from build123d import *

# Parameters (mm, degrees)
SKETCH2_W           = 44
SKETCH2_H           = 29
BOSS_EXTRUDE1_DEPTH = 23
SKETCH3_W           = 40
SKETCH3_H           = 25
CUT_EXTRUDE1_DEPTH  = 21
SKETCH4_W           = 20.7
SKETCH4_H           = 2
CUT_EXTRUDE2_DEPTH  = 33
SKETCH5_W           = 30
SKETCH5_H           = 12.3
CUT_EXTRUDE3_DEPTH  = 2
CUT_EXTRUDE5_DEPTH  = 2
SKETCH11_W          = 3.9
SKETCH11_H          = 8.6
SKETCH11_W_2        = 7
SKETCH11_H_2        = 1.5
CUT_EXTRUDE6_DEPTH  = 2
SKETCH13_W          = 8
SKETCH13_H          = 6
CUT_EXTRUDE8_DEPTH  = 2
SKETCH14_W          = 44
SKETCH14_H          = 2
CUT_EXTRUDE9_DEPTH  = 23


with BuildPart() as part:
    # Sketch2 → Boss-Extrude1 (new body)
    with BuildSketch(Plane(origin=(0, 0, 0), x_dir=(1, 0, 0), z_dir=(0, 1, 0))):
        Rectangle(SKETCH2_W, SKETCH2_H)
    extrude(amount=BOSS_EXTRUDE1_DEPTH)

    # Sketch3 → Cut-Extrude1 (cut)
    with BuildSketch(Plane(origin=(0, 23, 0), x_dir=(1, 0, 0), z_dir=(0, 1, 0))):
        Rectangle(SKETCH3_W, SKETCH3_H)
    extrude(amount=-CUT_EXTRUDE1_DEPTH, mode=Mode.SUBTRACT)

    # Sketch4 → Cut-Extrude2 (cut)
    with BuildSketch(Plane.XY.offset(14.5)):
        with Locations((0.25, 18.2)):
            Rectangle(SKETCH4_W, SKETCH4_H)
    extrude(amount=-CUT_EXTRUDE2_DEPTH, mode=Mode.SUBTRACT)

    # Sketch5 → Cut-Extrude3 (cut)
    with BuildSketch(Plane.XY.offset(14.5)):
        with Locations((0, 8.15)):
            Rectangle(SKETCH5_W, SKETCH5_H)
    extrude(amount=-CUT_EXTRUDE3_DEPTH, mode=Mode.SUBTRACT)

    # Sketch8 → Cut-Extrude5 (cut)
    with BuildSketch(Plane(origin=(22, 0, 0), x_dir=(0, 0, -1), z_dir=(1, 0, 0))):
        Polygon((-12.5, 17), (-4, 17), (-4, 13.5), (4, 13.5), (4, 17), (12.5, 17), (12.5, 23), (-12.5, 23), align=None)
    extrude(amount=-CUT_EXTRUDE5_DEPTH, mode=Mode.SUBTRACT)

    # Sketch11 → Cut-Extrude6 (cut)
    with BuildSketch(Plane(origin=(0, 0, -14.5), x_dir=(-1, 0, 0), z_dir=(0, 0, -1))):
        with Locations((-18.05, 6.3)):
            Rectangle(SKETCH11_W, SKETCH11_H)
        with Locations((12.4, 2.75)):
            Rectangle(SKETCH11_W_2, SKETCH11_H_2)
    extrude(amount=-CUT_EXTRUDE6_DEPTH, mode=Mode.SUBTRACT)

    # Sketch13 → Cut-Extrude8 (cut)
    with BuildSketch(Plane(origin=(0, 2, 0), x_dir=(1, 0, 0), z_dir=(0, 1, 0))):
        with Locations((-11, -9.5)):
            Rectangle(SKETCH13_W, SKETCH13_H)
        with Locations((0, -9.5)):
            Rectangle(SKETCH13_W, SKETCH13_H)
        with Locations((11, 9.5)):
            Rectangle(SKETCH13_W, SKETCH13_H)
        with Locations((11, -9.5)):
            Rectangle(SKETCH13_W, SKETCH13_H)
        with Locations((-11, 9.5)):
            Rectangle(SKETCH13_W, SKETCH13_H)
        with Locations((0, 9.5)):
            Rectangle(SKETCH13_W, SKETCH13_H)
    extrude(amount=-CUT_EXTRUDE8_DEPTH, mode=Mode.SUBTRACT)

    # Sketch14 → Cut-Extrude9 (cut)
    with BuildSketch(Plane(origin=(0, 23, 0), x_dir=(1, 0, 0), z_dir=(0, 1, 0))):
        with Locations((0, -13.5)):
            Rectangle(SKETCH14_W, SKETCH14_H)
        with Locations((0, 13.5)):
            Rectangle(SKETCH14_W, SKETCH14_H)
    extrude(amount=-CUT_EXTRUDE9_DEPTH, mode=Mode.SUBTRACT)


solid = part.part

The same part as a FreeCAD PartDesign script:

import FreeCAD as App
import Part
import Sketcher

V = App.Vector

doc = App.newDocument("Part")
body = doc.addObject("PartDesign::Body", "Body")

# Sketch on XZ plane
sketch1 = body.newObject("Sketcher::SketchObject", "Sketch")
sketch1.AttachmentSupport = (doc.getObject("XZ_Plane"), [""])
sketch1.MapMode = "FlatFace"
sketch1.addGeometry(Part.LineSegment(V(-22, -14.5, 0), V(-22, 14.5, 0)), False)
sketch1.addGeometry(Part.LineSegment(V(-22, 14.5, 0), V(22, 14.5, 0)), False)
sketch1.addGeometry(Part.LineSegment(V(22, 14.5, 0), V(22, -14.5, 0)), False)
sketch1.addGeometry(Part.LineSegment(V(22, -14.5, 0), V(-22, -14.5, 0)), False)
sketch1.addConstraint(Sketcher.Constraint("Coincident", 0, 2, 1, 1))
sketch1.addConstraint(Sketcher.Constraint("Coincident", 1, 2, 2, 1))
sketch1.addConstraint(Sketcher.Constraint("Coincident", 2, 2, 3, 1))
sketch1.addConstraint(Sketcher.Constraint("Coincident", 3, 2, 0, 1))
sketch1.addConstraint(Sketcher.Constraint("Vertical", 0))
sketch1.addConstraint(Sketcher.Constraint("Horizontal", 1))
sketch1.addConstraint(Sketcher.Constraint("Vertical", 2))
sketch1.addConstraint(Sketcher.Constraint("Horizontal", 3))
sketch1.addConstraint(Sketcher.Constraint("Symmetric", 0, 2, 2, 2, -1, 1))
sketch1.addConstraint(Sketcher.Constraint("DistanceX", 1, 1, 1, 2, 44.0))
sketch1.addConstraint(Sketcher.Constraint("DistanceY", 0, 1, 0, 2, 29.0))
pad1 = body.newObject("PartDesign::Pad", "Pad")
pad1.Profile = sketch1
pad1.Length = 23
pad1.Reversed = True

# Sketch on XZ plane
sketch2 = body.newObject("Sketcher::SketchObject", "Sketch001")
sketch2.AttachmentSupport = (doc.getObject("XZ_Plane"), [""])
sketch2.MapMode = "FlatFace"
sketch2.AttachmentOffset = App.Placement(V(0, 0, -23), App.Rotation())
sketch2.addGeometry(Part.LineSegment(V(-20, -12.5, 0), V(-20, 12.5, 0)), False)
sketch2.addGeometry(Part.LineSegment(V(-20, 12.5, 0), V(20, 12.5, 0)), False)
sketch2.addGeometry(Part.LineSegment(V(20, 12.5, 0), V(20, -12.5, 0)), False)
sketch2.addGeometry(Part.LineSegment(V(20, -12.5, 0), V(-20, -12.5, 0)), False)
sketch2.addConstraint(Sketcher.Constraint("Coincident", 0, 2, 1, 1))
sketch2.addConstraint(Sketcher.Constraint("Coincident", 1, 2, 2, 1))
sketch2.addConstraint(Sketcher.Constraint("Coincident", 2, 2, 3, 1))
sketch2.addConstraint(Sketcher.Constraint("Coincident", 3, 2, 0, 1))
sketch2.addConstraint(Sketcher.Constraint("Vertical", 0))
sketch2.addConstraint(Sketcher.Constraint("Horizontal", 1))
sketch2.addConstraint(Sketcher.Constraint("Vertical", 2))
sketch2.addConstraint(Sketcher.Constraint("Horizontal", 3))
sketch2.addConstraint(Sketcher.Constraint("Symmetric", 0, 2, 2, 2, -1, 1))
sketch2.addConstraint(Sketcher.Constraint("DistanceX", 1, 1, 1, 2, 40.0))
sketch2.addConstraint(Sketcher.Constraint("DistanceY", 0, 1, 0, 2, 25.0))
pocket1 = body.newObject("PartDesign::Pocket", "Pocket")
pocket1.Profile = sketch2
pocket1.Length = 21
pocket1.Reversed = True

# Sketch on XY plane
sketch3 = body.newObject("Sketcher::SketchObject", "Sketch002")
sketch3.AttachmentSupport = (doc.getObject("XY_Plane"), [""])
sketch3.MapMode = "FlatFace"
sketch3.AttachmentOffset = App.Placement(V(0, 0, 14.5), App.Rotation())
sketch3.addGeometry(Part.LineSegment(V(-10.1, 19.2, 0), V(-10.1, 17.2, 0)), False)
sketch3.addGeometry(Part.LineSegment(V(-10.1, 17.2, 0), V(10.6, 17.2, 0)), False)
sketch3.addGeometry(Part.LineSegment(V(10.6, 17.2, 0), V(10.6, 19.2, 0)), False)
sketch3.addGeometry(Part.LineSegment(V(10.6, 19.2, 0), V(-10.1, 19.2, 0)), False)
sketch3.addConstraint(Sketcher.Constraint("Coincident", 0, 2, 1, 1))
sketch3.addConstraint(Sketcher.Constraint("Coincident", 1, 2, 2, 1))
sketch3.addConstraint(Sketcher.Constraint("Coincident", 2, 2, 3, 1))
sketch3.addConstraint(Sketcher.Constraint("Coincident", 3, 2, 0, 1))
sketch3.addConstraint(Sketcher.Constraint("Vertical", 0))
sketch3.addConstraint(Sketcher.Constraint("Horizontal", 1))
sketch3.addConstraint(Sketcher.Constraint("Vertical", 2))
sketch3.addConstraint(Sketcher.Constraint("Horizontal", 3))
sketch3.addConstraint(Sketcher.Constraint("DistanceY", 0, 2, 0, 1, 2.0))
sketch3.addConstraint(Sketcher.Constraint("DistanceX", 1, 1, 1, 2, 20.7))
sketch3.addConstraint(Sketcher.Constraint("DistanceX", 0, 2, -1, 1, 10.1))
sketch3.addConstraint(Sketcher.Constraint("DistanceY", -1, 1, 0, 2, 17.2))
pocket2 = body.newObject("PartDesign::Pocket", "Pocket001")
pocket2.Profile = sketch3
pocket2.Length = 33

# Sketch on XY plane
sketch4 = body.newObject("Sketcher::SketchObject", "Sketch003")
sketch4.AttachmentSupport = (doc.getObject("XY_Plane"), [""])
sketch4.MapMode = "FlatFace"
sketch4.AttachmentOffset = App.Placement(V(0, 0, 14.5), App.Rotation())
sketch4.addGeometry(Part.LineSegment(V(-15, 14.3, 0), V(-15, 2, 0)), False)
sketch4.addGeometry(Part.LineSegment(V(-15, 2, 0), V(15, 2, 0)), False)
sketch4.addGeometry(Part.LineSegment(V(15, 2, 0), V(15, 14.3, 0)), False)
sketch4.addGeometry(Part.LineSegment(V(15, 14.3, 0), V(-15, 14.3, 0)), False)
sketch4.addConstraint(Sketcher.Constraint("Coincident", 0, 2, 1, 1))
sketch4.addConstraint(Sketcher.Constraint("Coincident", 1, 2, 2, 1))
sketch4.addConstraint(Sketcher.Constraint("Coincident", 2, 2, 3, 1))
sketch4.addConstraint(Sketcher.Constraint("Coincident", 3, 2, 0, 1))
sketch4.addConstraint(Sketcher.Constraint("Vertical", 0))
sketch4.addConstraint(Sketcher.Constraint("Horizontal", 1))
sketch4.addConstraint(Sketcher.Constraint("Vertical", 2))
sketch4.addConstraint(Sketcher.Constraint("Horizontal", 3))
sketch4.addConstraint(Sketcher.Constraint("DistanceX", 1, 1, 1, 2, 30.0))
sketch4.addConstraint(Sketcher.Constraint("DistanceY", 0, 2, 0, 1, 12.3))
sketch4.addConstraint(Sketcher.Constraint("DistanceX", 0, 2, -1, 1, 15.0))
sketch4.addConstraint(Sketcher.Constraint("DistanceY", -1, 1, 0, 2, 2.0))
pocket3 = body.newObject("PartDesign::Pocket", "Pocket002")
pocket3.Profile = sketch4
pocket3.Length = 2

# Sketch on YZ plane
sketch5 = body.newObject("Sketcher::SketchObject", "Sketch004")
sketch5.AttachmentSupport = (doc.getObject("YZ_Plane"), [""])
sketch5.MapMode = "FlatFace"
sketch5.AttachmentOffset = App.Placement(V(0, 0, 22), App.Rotation())
sketch5.addGeometry(Part.LineSegment(V(17, 12.5, 0), V(17, 4, 0)), False)
sketch5.addGeometry(Part.LineSegment(V(17, 4, 0), V(13.5, 4, 0)), False)
sketch5.addGeometry(Part.LineSegment(V(13.5, 4, 0), V(13.5, -4, 0)), False)
sketch5.addGeometry(Part.LineSegment(V(13.5, -4, 0), V(17, -4, 0)), False)
sketch5.addGeometry(Part.LineSegment(V(17, -4, 0), V(17, -12.5, 0)), False)
sketch5.addGeometry(Part.LineSegment(V(17, -12.5, 0), V(23, -12.5, 0)), False)
sketch5.addGeometry(Part.LineSegment(V(23, -12.5, 0), V(23, 12.5, 0)), False)
sketch5.addGeometry(Part.LineSegment(V(23, 12.5, 0), V(17, 12.5, 0)), False)
sketch5.addConstraint(Sketcher.Constraint("Coincident", 0, 2, 1, 1))
sketch5.addConstraint(Sketcher.Constraint("Coincident", 1, 2, 2, 1))
sketch5.addConstraint(Sketcher.Constraint("Coincident", 2, 2, 3, 1))
sketch5.addConstraint(Sketcher.Constraint("Coincident", 3, 2, 4, 1))
sketch5.addConstraint(Sketcher.Constraint("Coincident", 4, 2, 5, 1))
sketch5.addConstraint(Sketcher.Constraint("Coincident", 5, 2, 6, 1))
sketch5.addConstraint(Sketcher.Constraint("Coincident", 6, 2, 7, 1))
sketch5.addConstraint(Sketcher.Constraint("Coincident", 7, 2, 0, 1))
sketch5.addConstraint(Sketcher.Constraint("Vertical", 0))
sketch5.addConstraint(Sketcher.Constraint("Horizontal", 1))
sketch5.addConstraint(Sketcher.Constraint("Vertical", 2))
sketch5.addConstraint(Sketcher.Constraint("Horizontal", 3))
sketch5.addConstraint(Sketcher.Constraint("Vertical", 4))
sketch5.addConstraint(Sketcher.Constraint("Horizontal", 5))
sketch5.addConstraint(Sketcher.Constraint("Vertical", 6))
sketch5.addConstraint(Sketcher.Constraint("Horizontal", 7))
sketch5.addConstraint(Sketcher.Constraint("Symmetric", 0, 2, 3, 2, -1))
sketch5.addConstraint(Sketcher.Constraint("Equal", 0, 4))
sketch5.addConstraint(Sketcher.Constraint("DistanceX", 5, 1, 5, 2, 6.0))
sketch5.addConstraint(Sketcher.Constraint("DistanceY", 2, 2, 2, 1, 8.0))
sketch5.addConstraint(Sketcher.Constraint("DistanceY", 6, 1, 6, 2, 25.0))
sketch5.addConstraint(Sketcher.Constraint("DistanceX", 1, 2, 1, 1, 3.5))
sketch5.addConstraint(Sketcher.Constraint("DistanceX", -1, 1, 0, 2, 17.0))
pocket4 = body.newObject("PartDesign::Pocket", "Pocket003")
pocket4.Profile = sketch5
pocket4.Length = 2

# Sketch on XY plane
sketch6 = body.newObject("Sketcher::SketchObject", "Sketch005")
sketch6.AttachmentSupport = (doc.getObject("XY_Plane"), [""])
sketch6.MapMode = "FlatFace"
sketch6.AttachmentOffset = App.Placement(V(0, 0, -14.5), App.Rotation())
sketch6.addGeometry(Part.LineSegment(V(20, 10.6, 0), V(20, 2, 0)), False)
sketch6.addGeometry(Part.LineSegment(V(20, 2, 0), V(16.1, 2, 0)), False)
sketch6.addGeometry(Part.LineSegment(V(16.1, 2, 0), V(16.1, 10.6, 0)), False)
sketch6.addGeometry(Part.LineSegment(V(16.1, 10.6, 0), V(20, 10.6, 0)), False)
sketch6.addGeometry(Part.LineSegment(V(-8.9, 3.5, 0), V(-8.9, 2, 0)), False)
sketch6.addGeometry(Part.LineSegment(V(-8.9, 2, 0), V(-15.9, 2, 0)), False)
sketch6.addGeometry(Part.LineSegment(V(-15.9, 2, 0), V(-15.9, 3.5, 0)), False)
sketch6.addGeometry(Part.LineSegment(V(-15.9, 3.5, 0), V(-8.9, 3.5, 0)), False)
sketch6.addConstraint(Sketcher.Constraint("Coincident", 0, 2, 1, 1))
sketch6.addConstraint(Sketcher.Constraint("Coincident", 1, 2, 2, 1))
sketch6.addConstraint(Sketcher.Constraint("Coincident", 2, 2, 3, 1))
sketch6.addConstraint(Sketcher.Constraint("Coincident", 3, 2, 0, 1))
sketch6.addConstraint(Sketcher.Constraint("Coincident", 4, 2, 5, 1))
sketch6.addConstraint(Sketcher.Constraint("Coincident", 5, 2, 6, 1))
sketch6.addConstraint(Sketcher.Constraint("Coincident", 6, 2, 7, 1))
sketch6.addConstraint(Sketcher.Constraint("Coincident", 7, 2, 4, 1))
sketch6.addConstraint(Sketcher.Constraint("Vertical", 0))
sketch6.addConstraint(Sketcher.Constraint("Horizontal", 1))
sketch6.addConstraint(Sketcher.Constraint("Vertical", 2))
sketch6.addConstraint(Sketcher.Constraint("Horizontal", 3))
sketch6.addConstraint(Sketcher.Constraint("Vertical", 4))
sketch6.addConstraint(Sketcher.Constraint("Horizontal", 5))
sketch6.addConstraint(Sketcher.Constraint("Vertical", 6))
sketch6.addConstraint(Sketcher.Constraint("Horizontal", 7))
sketch6.addConstraint(Sketcher.Constraint("Horizontal", 1, 2, 4, 2))
sketch6.addConstraint(Sketcher.Constraint("DistanceX", 5, 2, 5, 1, 7.0))
sketch6.addConstraint(Sketcher.Constraint("DistanceX", 1, 2, 1, 1, 3.9))
sketch6.addConstraint(Sketcher.Constraint("DistanceY", 0, 2, 0, 1, 8.6))
sketch6.addConstraint(Sketcher.Constraint("DistanceY", 4, 2, 4, 1, 1.5))
sketch6.addConstraint(Sketcher.Constraint("DistanceX", -1, 1, 0, 2, 20.0))
sketch6.addConstraint(Sketcher.Constraint("DistanceY", -1, 1, 0, 2, 2.0))
sketch6.addConstraint(Sketcher.Constraint("DistanceX", 4, 2, 1, 2, 25.0))
pocket5 = body.newObject("PartDesign::Pocket", "Pocket004")
pocket5.Profile = sketch6
pocket5.Length = 2
pocket5.Reversed = True

# Sketch on XZ plane
sketch7 = body.newObject("Sketcher::SketchObject", "Sketch006")
sketch7.AttachmentSupport = (doc.getObject("XZ_Plane"), [""])
sketch7.MapMode = "FlatFace"
sketch7.AttachmentOffset = App.Placement(V(0, 0, -2), App.Rotation())
sketch7.addGeometry(Part.LineSegment(V(-15, 6.5, 0), V(-15, 12.5, 0)), False)
sketch7.addGeometry(Part.LineSegment(V(-15, 12.5, 0), V(-7, 12.5, 0)), False)
sketch7.addGeometry(Part.LineSegment(V(-7, 12.5, 0), V(-7, 6.5, 0)), False)
sketch7.addGeometry(Part.LineSegment(V(-7, 6.5, 0), V(-15, 6.5, 0)), False)
sketch7.addGeometry(Part.LineSegment(V(-4, 6.5, 0), V(-4, 12.5, 0)), False)
sketch7.addGeometry(Part.LineSegment(V(-4, 12.5, 0), V(4, 12.5, 0)), False)
sketch7.addGeometry(Part.LineSegment(V(4, 12.5, 0), V(4, 6.5, 0)), False)
sketch7.addGeometry(Part.LineSegment(V(4, 6.5, 0), V(-4, 6.5, 0)), False)
sketch7.addGeometry(Part.LineSegment(V(7, -12.5, 0), V(7, -6.5, 0)), False)
sketch7.addGeometry(Part.LineSegment(V(7, -6.5, 0), V(15, -6.5, 0)), False)
sketch7.addGeometry(Part.LineSegment(V(15, -6.5, 0), V(15, -12.5, 0)), False)
sketch7.addGeometry(Part.LineSegment(V(15, -12.5, 0), V(7, -12.5, 0)), False)
sketch7.addGeometry(Part.LineSegment(V(7, 6.5, 0), V(7, 12.5, 0)), False)
sketch7.addGeometry(Part.LineSegment(V(7, 12.5, 0), V(15, 12.5, 0)), False)
sketch7.addGeometry(Part.LineSegment(V(15, 12.5, 0), V(15, 6.5, 0)), False)
sketch7.addGeometry(Part.LineSegment(V(15, 6.5, 0), V(7, 6.5, 0)), False)
sketch7.addGeometry(Part.LineSegment(V(-15, -12.5, 0), V(-15, -6.5, 0)), False)
sketch7.addGeometry(Part.LineSegment(V(-15, -6.5, 0), V(-7, -6.5, 0)), False)
sketch7.addGeometry(Part.LineSegment(V(-7, -6.5, 0), V(-7, -12.5, 0)), False)
sketch7.addGeometry(Part.LineSegment(V(-7, -12.5, 0), V(-15, -12.5, 0)), False)
sketch7.addGeometry(Part.LineSegment(V(-4, -12.5, 0), V(-4, -6.5, 0)), False)
sketch7.addGeometry(Part.LineSegment(V(-4, -6.5, 0), V(4, -6.5, 0)), False)
sketch7.addGeometry(Part.LineSegment(V(4, -6.5, 0), V(4, -12.5, 0)), False)
sketch7.addGeometry(Part.LineSegment(V(4, -12.5, 0), V(-4, -12.5, 0)), False)
sketch7.addConstraint(Sketcher.Constraint("Coincident", 0, 2, 1, 1))
sketch7.addConstraint(Sketcher.Constraint("Coincident", 1, 2, 2, 1))
sketch7.addConstraint(Sketcher.Constraint("Coincident", 2, 2, 3, 1))
sketch7.addConstraint(Sketcher.Constraint("Coincident", 3, 2, 0, 1))
sketch7.addConstraint(Sketcher.Constraint("Coincident", 4, 2, 5, 1))
sketch7.addConstraint(Sketcher.Constraint("Coincident", 5, 2, 6, 1))
sketch7.addConstraint(Sketcher.Constraint("Coincident", 6, 2, 7, 1))
sketch7.addConstraint(Sketcher.Constraint("Coincident", 7, 2, 4, 1))
sketch7.addConstraint(Sketcher.Constraint("Coincident", 8, 2, 9, 1))
sketch7.addConstraint(Sketcher.Constraint("Coincident", 9, 2, 10, 1))
sketch7.addConstraint(Sketcher.Constraint("Coincident", 10, 2, 11, 1))
sketch7.addConstraint(Sketcher.Constraint("Coincident", 11, 2, 8, 1))
sketch7.addConstraint(Sketcher.Constraint("Coincident", 12, 2, 13, 1))
sketch7.addConstraint(Sketcher.Constraint("Coincident", 13, 2, 14, 1))
sketch7.addConstraint(Sketcher.Constraint("Coincident", 14, 2, 15, 1))
sketch7.addConstraint(Sketcher.Constraint("Coincident", 15, 2, 12, 1))
sketch7.addConstraint(Sketcher.Constraint("Coincident", 16, 2, 17, 1))
sketch7.addConstraint(Sketcher.Constraint("Coincident", 17, 2, 18, 1))
sketch7.addConstraint(Sketcher.Constraint("Coincident", 18, 2, 19, 1))
sketch7.addConstraint(Sketcher.Constraint("Coincident", 19, 2, 16, 1))
sketch7.addConstraint(Sketcher.Constraint("Coincident", 20, 2, 21, 1))
sketch7.addConstraint(Sketcher.Constraint("Coincident", 21, 2, 22, 1))
sketch7.addConstraint(Sketcher.Constraint("Coincident", 22, 2, 23, 1))
sketch7.addConstraint(Sketcher.Constraint("Coincident", 23, 2, 20, 1))
sketch7.addConstraint(Sketcher.Constraint("Vertical", 0))
sketch7.addConstraint(Sketcher.Constraint("Horizontal", 1))
sketch7.addConstraint(Sketcher.Constraint("Vertical", 2))
sketch7.addConstraint(Sketcher.Constraint("Horizontal", 3))
sketch7.addConstraint(Sketcher.Constraint("Vertical", 4))
sketch7.addConstraint(Sketcher.Constraint("Horizontal", 5))
sketch7.addConstraint(Sketcher.Constraint("Vertical", 6))
sketch7.addConstraint(Sketcher.Constraint("Horizontal", 7))
sketch7.addConstraint(Sketcher.Constraint("Vertical", 8))
sketch7.addConstraint(Sketcher.Constraint("Horizontal", 9))
sketch7.addConstraint(Sketcher.Constraint("Vertical", 10))
sketch7.addConstraint(Sketcher.Constraint("Horizontal", 11))
sketch7.addConstraint(Sketcher.Constraint("Vertical", 12))
sketch7.addConstraint(Sketcher.Constraint("Horizontal", 13))
sketch7.addConstraint(Sketcher.Constraint("Vertical", 14))
sketch7.addConstraint(Sketcher.Constraint("Horizontal", 15))
sketch7.addConstraint(Sketcher.Constraint("Vertical", 16))
sketch7.addConstraint(Sketcher.Constraint("Horizontal", 17))
sketch7.addConstraint(Sketcher.Constraint("Vertical", 18))
sketch7.addConstraint(Sketcher.Constraint("Horizontal", 19))
sketch7.addConstraint(Sketcher.Constraint("Vertical", 20))
sketch7.addConstraint(Sketcher.Constraint("Horizontal", 21))
sketch7.addConstraint(Sketcher.Constraint("Vertical", 22))
sketch7.addConstraint(Sketcher.Constraint("Horizontal", 23))
sketch7.addConstraint(Sketcher.Constraint("Symmetric", 2, 2, 8, 2, -1, 1))
sketch7.addConstraint(Sketcher.Constraint("Symmetric", 0, 2, 10, 2, -1, 1))
sketch7.addConstraint(Sketcher.Constraint("Symmetric", 14, 2, 16, 2, -1, 1))
sketch7.addConstraint(Sketcher.Constraint("Symmetric", 12, 2, 18, 2, -1, 1))
sketch7.addConstraint(Sketcher.Constraint("Symmetric", 6, 2, 20, 2, -1, 1))
sketch7.addConstraint(Sketcher.Constraint("Symmetric", 4, 2, 22, 2, -1, 1))
sketch7.addConstraint(Sketcher.Constraint("Symmetric", 1, 2, 12, 2, -2))
sketch7.addConstraint(Sketcher.Constraint("Symmetric", 3, 2, 14, 2, -2))
sketch7.addConstraint(Sketcher.Constraint("Horizontal", 1, 2, 4, 2))
sketch7.addConstraint(Sketcher.Constraint("Horizontal", 3, 2, 6, 2))
sketch7.addConstraint(Sketcher.Constraint("Vertical", 7, 2, 20, 2))
sketch7.addConstraint(Sketcher.Constraint("Equal", 3, 5))
sketch7.addConstraint(Sketcher.Constraint("DistanceX", 1, 1, 1, 2, 8.0))
sketch7.addConstraint(Sketcher.Constraint("DistanceY", 0, 1, 0, 2, 6.0))
sketch7.addConstraint(Sketcher.Constraint("DistanceX", 0, 2, -1, 1, 15.0))
sketch7.addConstraint(Sketcher.Constraint("DistanceY", 8, 2, 6, 2, 13.0))
pocket6 = body.newObject("PartDesign::Pocket", "Pocket005")
pocket6.Profile = sketch7
pocket6.Length = 2
pocket6.Reversed = True

# Sketch on XZ plane
sketch8 = body.newObject("Sketcher::SketchObject", "Sketch007")
sketch8.AttachmentSupport = (doc.getObject("XZ_Plane"), [""])
sketch8.MapMode = "FlatFace"
sketch8.AttachmentOffset = App.Placement(V(0, 0, -23), App.Rotation())
sketch8.addGeometry(Part.LineSegment(V(-22, 12.5, 0), V(-22, 14.5, 0)), False)
sketch8.addGeometry(Part.LineSegment(V(-22, 14.5, 0), V(22, 14.5, 0)), False)
sketch8.addGeometry(Part.LineSegment(V(22, 14.5, 0), V(22, 12.5, 0)), False)
sketch8.addGeometry(Part.LineSegment(V(22, 12.5, 0), V(-22, 12.5, 0)), False)
sketch8.addGeometry(Part.LineSegment(V(-22, -14.5, 0), V(-22, -12.5, 0)), False)
sketch8.addGeometry(Part.LineSegment(V(-22, -12.5, 0), V(22, -12.5, 0)), False)
sketch8.addGeometry(Part.LineSegment(V(22, -12.5, 0), V(22, -14.5, 0)), False)
sketch8.addGeometry(Part.LineSegment(V(22, -14.5, 0), V(-22, -14.5, 0)), False)
sketch8.addConstraint(Sketcher.Constraint("Coincident", 0, 2, 1, 1))
sketch8.addConstraint(Sketcher.Constraint("Coincident", 1, 2, 2, 1))
sketch8.addConstraint(Sketcher.Constraint("Coincident", 2, 2, 3, 1))
sketch8.addConstraint(Sketcher.Constraint("Coincident", 3, 2, 0, 1))
sketch8.addConstraint(Sketcher.Constraint("Coincident", 4, 2, 5, 1))
sketch8.addConstraint(Sketcher.Constraint("Coincident", 5, 2, 6, 1))
sketch8.addConstraint(Sketcher.Constraint("Coincident", 6, 2, 7, 1))
sketch8.addConstraint(Sketcher.Constraint("Coincident", 7, 2, 4, 1))
sketch8.addConstraint(Sketcher.Constraint("Vertical", 0))
sketch8.addConstraint(Sketcher.Constraint("Horizontal", 1))
sketch8.addConstraint(Sketcher.Constraint("Vertical", 2))
sketch8.addConstraint(Sketcher.Constraint("Horizontal", 3))
sketch8.addConstraint(Sketcher.Constraint("Vertical", 4))
sketch8.addConstraint(Sketcher.Constraint("Horizontal", 5))
sketch8.addConstraint(Sketcher.Constraint("Vertical", 6))
sketch8.addConstraint(Sketcher.Constraint("Horizontal", 7))
sketch8.addConstraint(Sketcher.Constraint("Symmetric", 2, 2, 4, 2, -1, 1))
sketch8.addConstraint(Sketcher.Constraint("Symmetric", 0, 2, 6, 2, -1, 1))
sketch8.addConstraint(Sketcher.Constraint("Vertical", 3, 2, 4, 2))
sketch8.addConstraint(Sketcher.Constraint("DistanceX", 1, 1, 1, 2, 44.0))
sketch8.addConstraint(Sketcher.Constraint("DistanceY", 0, 1, 0, 2, 2.0))
sketch8.addConstraint(Sketcher.Constraint("DistanceY", 4, 2, 3, 2, 25.0))
pocket7 = body.newObject("PartDesign::Pocket", "Pocket006")
pocket7.Profile = sketch8
pocket7.Length = 23
pocket7.Reversed = True

doc.recompute()
